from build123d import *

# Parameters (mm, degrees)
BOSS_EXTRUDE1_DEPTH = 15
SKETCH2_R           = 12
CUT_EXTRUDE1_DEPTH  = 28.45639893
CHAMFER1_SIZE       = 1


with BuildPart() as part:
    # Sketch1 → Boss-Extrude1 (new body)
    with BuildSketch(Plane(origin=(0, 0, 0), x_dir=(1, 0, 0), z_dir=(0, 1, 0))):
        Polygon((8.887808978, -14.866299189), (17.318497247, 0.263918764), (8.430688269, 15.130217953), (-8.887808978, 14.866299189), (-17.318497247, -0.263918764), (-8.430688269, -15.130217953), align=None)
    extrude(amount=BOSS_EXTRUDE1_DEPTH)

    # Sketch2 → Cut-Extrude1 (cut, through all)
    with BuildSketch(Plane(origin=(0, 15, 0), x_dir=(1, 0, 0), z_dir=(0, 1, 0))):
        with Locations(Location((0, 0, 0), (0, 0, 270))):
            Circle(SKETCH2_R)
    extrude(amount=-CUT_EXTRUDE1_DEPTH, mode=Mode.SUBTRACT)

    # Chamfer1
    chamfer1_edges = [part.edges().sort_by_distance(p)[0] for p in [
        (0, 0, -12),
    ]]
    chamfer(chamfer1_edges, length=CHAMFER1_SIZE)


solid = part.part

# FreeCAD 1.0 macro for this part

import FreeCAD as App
import Part
import Sketcher


def edges_at(feature, points):
    """Names of the edges that pass closest to the given points."""
    edges = feature.Shape.Edges
    near = lambda p: min(range(len(edges)), key=lambda i: edges[i].distToShape(Part.Vertex(*p))[0])
    return sorted({f"Edge{near(p) + 1}" for p in points})


def add_polygon(sketch, points):
    """Adds a closed chain of lines whose ends are joined by coincident constraints."""
    first, n = sketch.GeometryCount, len(points)
    for a, b in zip(points, points[1:] + points[:1]):
        sketch.addGeometry(Part.LineSegment(App.Vector(*a, 0), App.Vector(*b, 0)), False)
    for i in range(n):
        sketch.addConstraint(Sketcher.Constraint("Coincident", first + i, 2, first + (i + 1) % n, 1))

doc = App.newDocument("Part")
body = doc.addObject("PartDesign::Body", "Body")

# Sketch on XZ plane
sketch1 = body.newObject("Sketcher::SketchObject", "Sketch")
sketch1.AttachmentSupport = (doc.getObject("XZ_Plane"), [""])
sketch1.MapMode = "FlatFace"
add_polygon(sketch1, [(9, 15), (17, 0), (8, -15), (-9, -15), (-17, 0), (-8, 15)])  # lines 0-5
sketch1.addConstraint([
    Sketcher.Constraint("Symmetric", 0, 2, 3, 2, -1, 1),
    Sketcher.Constraint("Symmetric", 1, 2, 4, 2, -1, 1),
    Sketcher.Constraint("Symmetric", 2, 2, 5, 2, -1, 1),
    Sketcher.Constraint("Equal", 0, 1),
    Sketcher.Constraint("Equal", 1, 2),
    Sketcher.Constraint("DistanceY", 2, 2, -1, 1, 14.866299),
    Sketcher.Constraint("DistanceY", 1, 2, 0, 2, 14.866299),
    Sketcher.Constraint("Distance", 0, 17.320508),
    Sketcher.Constraint("DistanceY", 0, 2, -1, 1, 0.263919),
])
pad1 = body.newObject("PartDesign::Pad", "Pad")
pad1.Profile = sketch1
pad1.Length = 15
pad1.Reversed = True

# Sketch on XZ plane
sketch2 = body.newObject("Sketcher::SketchObject", "Sketch001")
sketch2.AttachmentSupport = (doc.getObject("XZ_Plane"), [""])
sketch2.MapMode = "FlatFace"
sketch2.AttachmentOffset = App.Placement(App.Vector(0, 0, -15), App.Rotation())
sketch2.addGeometry(Part.Circle(App.Vector(0, 0, 0), App.Vector(0, 0, 1), 12), False)
sketch2.addConstraint([
    Sketcher.Constraint("Coincident", 0, 3, -1, 1),
    Sketcher.Constraint("Diameter", 0, 24.0),
])
pocket1 = body.newObject("PartDesign::Pocket", "Pocket")
pocket1.Profile = sketch2
pocket1.Type = "ThroughAll"
pocket1.Reversed = True
doc.recompute()

chamfer = body.newObject("PartDesign::Chamfer", "Chamfer")
chamfer.Base = (pocket1, edges_at(pocket1, [(0, 0, -12)]))
chamfer.Size = 1

doc.recompute()
